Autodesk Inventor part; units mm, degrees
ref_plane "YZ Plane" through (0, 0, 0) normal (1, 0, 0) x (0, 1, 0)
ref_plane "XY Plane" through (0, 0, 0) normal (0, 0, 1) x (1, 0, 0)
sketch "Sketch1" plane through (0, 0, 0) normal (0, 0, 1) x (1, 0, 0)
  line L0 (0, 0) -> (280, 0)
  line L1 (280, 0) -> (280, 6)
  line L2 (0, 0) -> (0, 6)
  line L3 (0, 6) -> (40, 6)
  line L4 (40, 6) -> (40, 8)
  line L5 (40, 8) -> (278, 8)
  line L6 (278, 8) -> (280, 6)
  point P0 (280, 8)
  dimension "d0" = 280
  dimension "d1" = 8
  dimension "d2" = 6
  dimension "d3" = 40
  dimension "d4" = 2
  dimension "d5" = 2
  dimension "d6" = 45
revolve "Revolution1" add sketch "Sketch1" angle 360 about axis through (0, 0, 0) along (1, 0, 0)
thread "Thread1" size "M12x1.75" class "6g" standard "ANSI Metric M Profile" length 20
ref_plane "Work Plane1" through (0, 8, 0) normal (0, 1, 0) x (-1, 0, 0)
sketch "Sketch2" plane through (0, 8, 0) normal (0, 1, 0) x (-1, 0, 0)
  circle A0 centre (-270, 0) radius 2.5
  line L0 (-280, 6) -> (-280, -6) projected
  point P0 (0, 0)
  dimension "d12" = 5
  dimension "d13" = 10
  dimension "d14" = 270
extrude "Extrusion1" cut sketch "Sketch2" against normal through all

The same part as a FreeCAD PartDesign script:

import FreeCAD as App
import Part
import Sketcher
Q = App.Units.Quantity


def add_polygon(sketch, points):
    """Adds a closed chain of lines whose ends are joined by coincident constraints."""
    first, n = sketch.GeometryCount, len(points)
    for a, b in zip(points, points[1:] + points[:1]):
        sketch.addGeometry(Part.LineSegment(App.Vector(*a, 0), App.Vector(*b, 0)), False)
    for i in range(n):
        sketch.addConstraint(Sketcher.Constraint("Coincident", first + i, 2, first + (i + 1) % n, 1))

doc = App.newDocument("Part")
params = doc.addObject("Spreadsheet::Sheet", "Params")
for row, (alias, value) in enumerate([
    ("sketch1_width", "280 mm"),
    ("sketch1_width2", "40 mm"),
    ("sketch1_height", "6 mm"),
    ("sketch1_height2", "2 mm"),
    ("revolution_angle", "360 deg"),
    ("sketch2_diameter", "5 mm"),
], start=1):
    params.set(f"A{row}", alias)
    params.set(f"B{row}", "=" + value)
    params.setAlias(f"B{row}", alias)

body = doc.addObject("PartDesign::Body", "Body")

# Sketch on XY plane
sketch1 = body.newObject("Sketcher::SketchObject", "Sketch")
sketch1.AttachmentSupport = (doc.getObject("XY_Plane"), [""])
sketch1.MapMode = "FlatFace"
add_polygon(sketch1, [(0, 6), (0, 0), (280, 0), (280, 6), (278, 8), (40, 8), (40, 6)])  # lines 0-6
sketch1.addConstraint(Sketcher.Constraint("Vertical", 0))
sketch1.addConstraint(Sketcher.Constraint("Horizontal", 1))
sketch1.addConstraint(Sketcher.Constraint("Vertical", 2))
sketch1.addConstraint(Sketcher.Constraint("Horizontal", 4))
sketch1.addConstraint(Sketcher.Constraint("Vertical", 5))
sketch1.addConstraint(Sketcher.Constraint("Horizontal", 6))
sketch1.addConstraint(Sketcher.Constraint("Coincident", 0, 2, -1, 1))
sketch1.addConstraint(Sketcher.Constraint("Horizontal", 2, 2, 5, 2))
sketch1.addConstraint(Sketcher.Constraint("DistanceX", 1, 1, 1, 2, Q("280 mm")))
sketch1.addConstraint(Sketcher.Constraint("DistanceX", 6, 2, 6, 1, Q("40 mm")))
sketch1.addConstraint(Sketcher.Constraint("DistanceY", 0, 2, 0, 1, Q("6 mm")))
sketch1.addConstraint(Sketcher.Constraint("DistanceY", 5, 2, 5, 1, Q("2 mm")))
sketch1.addConstraint(Sketcher.Constraint("DistanceX", 3, 2, 2, 2, Q("2 mm")))
sketch1.setExpression("Constraints[15]", "Params.sketch1_width")
sketch1.setExpression("Constraints[16]", "Params.sketch1_width2")
sketch1.setExpression("Constraints[17]", "Params.sketch1_height")
sketch1.setExpression("Constraints[18]", "Params.sketch1_height2")
revolution = body.newObject("PartDesign::Revolution", "Revolution")
revolution.Profile = sketch1
revolution.ReferenceAxis = (sketch1, ["H_Axis"])
revolution.setExpression("Angle", "Params.revolution_angle")

# Sketch on XZ plane
sketch2 = body.newObject("Sketcher::SketchObject", "Sketch001")
sketch2.AttachmentSupport = (doc.getObject("XZ_Plane"), [""])
sketch2.MapMode = "FlatFace"
sketch2.AttachmentOffset = App.Placement(App.Vector(0, 0, -8), App.Rotation())
sketch2.addGeometry(Part.Circle(App.Vector(270, 0, 0), App.Vector(0, 0, 1), 2.5), False)
sketch2.addConstraint(Sketcher.Constraint("PointOnObject", 0, 3, -1))
sketch2.addConstraint(Sketcher.Constraint("Diameter", 0, Q("5 mm")))
sketch2.addConstraint(Sketcher.Constraint("DistanceX", -1, 1, 0, 3, Q("270 mm")))
sketch2.setExpression("Constraints[1]", "Params.sketch2_diameter")
pocket1 = body.newObject("PartDesign::Pocket", "Pocket")
pocket1.Profile = sketch2
pocket1.Type = "ThroughAll"
pocket1.Reversed = True

doc.recompute()
